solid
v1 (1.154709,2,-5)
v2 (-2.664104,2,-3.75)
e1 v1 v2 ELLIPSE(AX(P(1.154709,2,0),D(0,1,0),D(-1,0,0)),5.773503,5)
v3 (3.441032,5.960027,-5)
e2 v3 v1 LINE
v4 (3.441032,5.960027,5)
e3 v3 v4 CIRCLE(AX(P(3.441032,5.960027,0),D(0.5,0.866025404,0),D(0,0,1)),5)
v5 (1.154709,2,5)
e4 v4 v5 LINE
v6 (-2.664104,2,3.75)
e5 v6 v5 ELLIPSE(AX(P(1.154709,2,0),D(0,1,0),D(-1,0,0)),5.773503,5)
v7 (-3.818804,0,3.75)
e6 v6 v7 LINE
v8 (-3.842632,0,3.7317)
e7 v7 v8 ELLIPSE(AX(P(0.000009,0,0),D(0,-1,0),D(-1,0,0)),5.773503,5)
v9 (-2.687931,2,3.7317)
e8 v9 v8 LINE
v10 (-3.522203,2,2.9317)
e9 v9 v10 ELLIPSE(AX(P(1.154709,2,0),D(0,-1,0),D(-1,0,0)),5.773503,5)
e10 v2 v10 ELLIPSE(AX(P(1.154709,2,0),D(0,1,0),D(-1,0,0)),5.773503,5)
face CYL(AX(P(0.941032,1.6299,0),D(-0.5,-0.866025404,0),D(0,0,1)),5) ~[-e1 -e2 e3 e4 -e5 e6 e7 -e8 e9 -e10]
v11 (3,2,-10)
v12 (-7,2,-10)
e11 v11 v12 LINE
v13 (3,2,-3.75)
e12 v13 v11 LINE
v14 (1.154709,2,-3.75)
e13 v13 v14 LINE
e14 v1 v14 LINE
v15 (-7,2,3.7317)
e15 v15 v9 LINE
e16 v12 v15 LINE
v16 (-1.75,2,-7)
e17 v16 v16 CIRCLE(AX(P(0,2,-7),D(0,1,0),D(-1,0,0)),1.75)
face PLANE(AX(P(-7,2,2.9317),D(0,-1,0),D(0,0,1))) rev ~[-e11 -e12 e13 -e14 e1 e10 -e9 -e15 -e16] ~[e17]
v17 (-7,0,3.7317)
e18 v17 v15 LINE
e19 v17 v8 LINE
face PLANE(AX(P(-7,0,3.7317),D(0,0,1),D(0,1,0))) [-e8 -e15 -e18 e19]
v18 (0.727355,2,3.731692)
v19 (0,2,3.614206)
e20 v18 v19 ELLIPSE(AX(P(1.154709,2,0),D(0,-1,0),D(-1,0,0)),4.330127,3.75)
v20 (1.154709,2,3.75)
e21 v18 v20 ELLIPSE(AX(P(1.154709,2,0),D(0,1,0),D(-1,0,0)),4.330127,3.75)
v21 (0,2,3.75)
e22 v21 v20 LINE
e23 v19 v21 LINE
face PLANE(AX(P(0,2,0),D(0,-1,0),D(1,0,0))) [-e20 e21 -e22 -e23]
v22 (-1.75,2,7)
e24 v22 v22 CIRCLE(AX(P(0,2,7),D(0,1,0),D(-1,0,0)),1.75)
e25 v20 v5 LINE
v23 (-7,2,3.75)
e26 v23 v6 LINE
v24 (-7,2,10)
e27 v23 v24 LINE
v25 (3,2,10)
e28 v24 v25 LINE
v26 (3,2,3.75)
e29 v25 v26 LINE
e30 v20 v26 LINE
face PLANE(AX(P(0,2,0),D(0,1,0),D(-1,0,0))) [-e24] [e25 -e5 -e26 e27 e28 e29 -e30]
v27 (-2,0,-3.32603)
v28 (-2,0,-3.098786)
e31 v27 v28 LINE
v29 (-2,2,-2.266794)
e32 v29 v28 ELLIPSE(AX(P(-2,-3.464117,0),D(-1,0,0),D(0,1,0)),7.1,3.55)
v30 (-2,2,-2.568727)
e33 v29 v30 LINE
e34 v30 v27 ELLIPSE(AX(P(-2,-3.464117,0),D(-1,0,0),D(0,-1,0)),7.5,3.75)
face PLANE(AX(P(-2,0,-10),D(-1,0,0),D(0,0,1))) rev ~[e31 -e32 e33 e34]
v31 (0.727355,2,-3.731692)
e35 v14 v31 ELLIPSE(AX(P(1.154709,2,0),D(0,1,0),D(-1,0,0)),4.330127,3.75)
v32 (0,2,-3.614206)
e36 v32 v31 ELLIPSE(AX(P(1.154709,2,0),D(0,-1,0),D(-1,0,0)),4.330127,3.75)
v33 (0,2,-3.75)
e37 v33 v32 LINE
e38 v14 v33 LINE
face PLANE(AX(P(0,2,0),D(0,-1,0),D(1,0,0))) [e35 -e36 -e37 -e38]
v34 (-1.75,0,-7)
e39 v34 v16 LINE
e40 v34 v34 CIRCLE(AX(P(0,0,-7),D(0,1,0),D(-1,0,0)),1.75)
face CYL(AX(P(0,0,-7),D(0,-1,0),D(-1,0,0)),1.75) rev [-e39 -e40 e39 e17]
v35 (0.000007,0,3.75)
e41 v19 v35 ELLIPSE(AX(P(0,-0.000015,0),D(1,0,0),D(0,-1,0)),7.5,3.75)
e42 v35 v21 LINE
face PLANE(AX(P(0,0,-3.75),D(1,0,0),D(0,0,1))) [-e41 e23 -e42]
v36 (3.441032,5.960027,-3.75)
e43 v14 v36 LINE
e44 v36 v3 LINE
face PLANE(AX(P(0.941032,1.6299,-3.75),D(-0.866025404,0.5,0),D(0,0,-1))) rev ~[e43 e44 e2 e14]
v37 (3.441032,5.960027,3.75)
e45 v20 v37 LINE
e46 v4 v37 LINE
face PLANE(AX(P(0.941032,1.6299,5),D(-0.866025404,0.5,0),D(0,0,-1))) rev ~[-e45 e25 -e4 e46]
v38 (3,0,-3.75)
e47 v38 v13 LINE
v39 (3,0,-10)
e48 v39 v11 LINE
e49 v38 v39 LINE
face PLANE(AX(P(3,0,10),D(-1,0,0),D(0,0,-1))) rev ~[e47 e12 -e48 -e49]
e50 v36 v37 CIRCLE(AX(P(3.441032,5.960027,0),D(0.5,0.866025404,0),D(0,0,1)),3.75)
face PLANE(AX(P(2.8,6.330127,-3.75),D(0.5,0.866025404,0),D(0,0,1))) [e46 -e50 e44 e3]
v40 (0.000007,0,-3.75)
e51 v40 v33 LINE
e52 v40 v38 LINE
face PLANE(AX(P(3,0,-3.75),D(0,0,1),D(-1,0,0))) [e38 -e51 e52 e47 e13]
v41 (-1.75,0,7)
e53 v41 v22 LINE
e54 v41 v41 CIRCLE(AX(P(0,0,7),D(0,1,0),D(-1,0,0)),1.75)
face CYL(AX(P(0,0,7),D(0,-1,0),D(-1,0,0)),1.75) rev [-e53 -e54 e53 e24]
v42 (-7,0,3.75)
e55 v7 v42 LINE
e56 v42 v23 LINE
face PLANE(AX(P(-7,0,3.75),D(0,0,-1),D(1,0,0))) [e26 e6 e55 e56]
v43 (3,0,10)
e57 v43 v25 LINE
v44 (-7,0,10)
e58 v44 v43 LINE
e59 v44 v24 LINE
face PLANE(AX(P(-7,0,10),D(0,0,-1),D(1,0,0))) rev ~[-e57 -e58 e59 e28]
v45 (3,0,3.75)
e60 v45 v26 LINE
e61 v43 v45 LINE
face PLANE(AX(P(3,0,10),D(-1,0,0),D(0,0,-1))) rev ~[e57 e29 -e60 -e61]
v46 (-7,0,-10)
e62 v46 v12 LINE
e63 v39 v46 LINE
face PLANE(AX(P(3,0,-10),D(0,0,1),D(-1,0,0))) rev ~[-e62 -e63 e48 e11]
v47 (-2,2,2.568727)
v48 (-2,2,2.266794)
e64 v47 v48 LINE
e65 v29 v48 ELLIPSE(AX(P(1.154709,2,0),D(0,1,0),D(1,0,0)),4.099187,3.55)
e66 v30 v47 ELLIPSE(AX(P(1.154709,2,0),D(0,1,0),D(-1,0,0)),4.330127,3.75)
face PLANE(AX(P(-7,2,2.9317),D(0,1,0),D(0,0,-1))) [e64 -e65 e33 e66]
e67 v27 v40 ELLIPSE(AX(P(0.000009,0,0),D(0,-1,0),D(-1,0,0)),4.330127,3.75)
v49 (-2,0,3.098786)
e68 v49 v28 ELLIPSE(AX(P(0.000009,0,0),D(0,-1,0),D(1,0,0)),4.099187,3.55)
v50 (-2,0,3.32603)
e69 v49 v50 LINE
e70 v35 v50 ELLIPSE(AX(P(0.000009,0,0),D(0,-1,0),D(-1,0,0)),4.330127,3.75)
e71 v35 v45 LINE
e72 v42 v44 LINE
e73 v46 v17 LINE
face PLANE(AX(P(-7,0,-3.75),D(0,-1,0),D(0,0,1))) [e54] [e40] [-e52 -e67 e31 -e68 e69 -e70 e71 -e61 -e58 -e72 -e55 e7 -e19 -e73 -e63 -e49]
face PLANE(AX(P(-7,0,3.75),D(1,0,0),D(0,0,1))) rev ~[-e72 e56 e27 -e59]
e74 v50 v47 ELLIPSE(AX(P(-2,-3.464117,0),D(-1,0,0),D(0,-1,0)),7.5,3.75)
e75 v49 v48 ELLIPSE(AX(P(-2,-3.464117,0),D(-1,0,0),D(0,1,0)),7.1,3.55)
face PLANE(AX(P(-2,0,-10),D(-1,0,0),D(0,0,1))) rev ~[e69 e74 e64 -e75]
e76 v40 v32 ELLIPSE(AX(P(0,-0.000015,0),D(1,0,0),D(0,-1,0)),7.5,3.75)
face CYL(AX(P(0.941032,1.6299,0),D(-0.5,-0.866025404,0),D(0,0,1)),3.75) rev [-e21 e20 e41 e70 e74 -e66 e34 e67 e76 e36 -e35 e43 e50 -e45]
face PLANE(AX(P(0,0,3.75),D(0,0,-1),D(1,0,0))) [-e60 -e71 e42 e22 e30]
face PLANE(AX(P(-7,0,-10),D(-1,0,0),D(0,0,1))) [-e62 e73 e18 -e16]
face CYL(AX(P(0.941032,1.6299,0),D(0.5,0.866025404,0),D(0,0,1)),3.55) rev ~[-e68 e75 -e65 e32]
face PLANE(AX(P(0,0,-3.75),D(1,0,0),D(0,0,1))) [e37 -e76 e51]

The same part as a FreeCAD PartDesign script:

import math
import FreeCAD as App
import Part
import Sketcher
from FreeCAD import Vector
Q = App.Units.Quantity

doc = App.newDocument("Part")
body = doc.addObject("PartDesign::Body", "Body")
body.AllowCompound = True

# Sketch on XZ plane
sketch1 = body.newObject("Sketcher::SketchObject", "Sketch")
sketch1.AttachmentSupport = (doc.getObject("XZ_Plane"), [""])
sketch1.MapMode = "FlatFace"
sketch1.addGeometry(Part.LineSegment(Vector(-7, 3.8, 0), Vector(-7, 10, 0)), False)
sketch1.addGeometry(Part.LineSegment(Vector(-7, 10, 0), Vector(3, 10, 0)), False)
sketch1.addGeometry(Part.LineSegment(Vector(3, 10, 0), Vector(3, -10, 0)), False)
sketch1.addGeometry(Part.LineSegment(Vector(3, -10, 0), Vector(-7, -10, 0)), False)
sketch1.addGeometry(Part.LineSegment(Vector(-7, -10, 0), Vector(-7, -3.8, 0)), False)
sketch1.addGeometry(Part.LineSegment(Vector(-7, -3.8, 0), Vector(0.3, -3.8, 0)), False)
sketch1.addGeometry(Part.LineSegment(Vector(0.3, -3.8, 0), Vector(0.3, 3.8, 0)), False)
sketch1.addGeometry(Part.LineSegment(Vector(0.3, 3.8, 0), Vector(-7, 3.8, 0)), False)
sketch1.addGeometry(Part.Circle(Vector(0, -7, 0), Vector(0, 0, 1), 1.8), False)
sketch1.addGeometry(Part.Circle(Vector(0, 7, 0), Vector(0, 0, 1), 1.8), False)
sketch1.addConstraint(Sketcher.Constraint("Coincident", 0, 2, 1, 1))
sketch1.addConstraint(Sketcher.Constraint("Coincident", 1, 2, 2, 1))
sketch1.addConstraint(Sketcher.Constraint("Coincident", 2, 2, 3, 1))
sketch1.addConstraint(Sketcher.Constraint("Coincident", 3, 2, 4, 1))
sketch1.addConstraint(Sketcher.Constraint("Coincident", 4, 2, 5, 1))
sketch1.addConstraint(Sketcher.Constraint("Coincident", 5, 2, 6, 1))
sketch1.addConstraint(Sketcher.Constraint("Coincident", 6, 2, 7, 1))
sketch1.addConstraint(Sketcher.Constraint("Coincident", 7, 2, 0, 1))
sketch1.addConstraint(Sketcher.Constraint("Vertical", 0))
sketch1.addConstraint(Sketcher.Constraint("Horizontal", 1))
sketch1.addConstraint(Sketcher.Constraint("Vertical", 2))
sketch1.addConstraint(Sketcher.Constraint("Horizontal", 3))
sketch1.addConstraint(Sketcher.Constraint("Vertical", 4))
sketch1.addConstraint(Sketcher.Constraint("Horizontal", 5))
sketch1.addConstraint(Sketcher.Constraint("Vertical", 6))
sketch1.addConstraint(Sketcher.Constraint("Horizontal", 7))
sketch1.addConstraint(Sketcher.Constraint("Equal", 8, 9))
sketch1.addConstraint(Sketcher.Constraint("Symmetric", 8, 3, 9, 3, -1, 1))
sketch1.addConstraint(Sketcher.Constraint("Symmetric", 0, 2, 3, 2, -1))
sketch1.addConstraint(Sketcher.Constraint("PointOnObject", 8, 3, -2))
sketch1.addConstraint(Sketcher.Constraint("Equal", 0, 4))
sketch1.addConstraint(Sketcher.Constraint("Diameter", 8, Q("3.5 mm")))
sketch1.addConstraint(Sketcher.Constraint("DistanceX", 1, 1, 1, 2, Q("10 mm")))
sketch1.addConstraint(Sketcher.Constraint("DistanceY", 6, 1, 6, 2, Q("7.5 mm")))
sketch1.addConstraint(Sketcher.Constraint("DistanceY", 8, 3, -1, 1, Q("7 mm")))
sketch1.addConstraint(Sketcher.Constraint("DistanceX", 0, 2, -1, 1, Q("7 mm")))
sketch1.addConstraint(Sketcher.Constraint("DistanceY", -1, 1, 0, 2, Q("10 mm")))
sketch1.addConstraint(Sketcher.Constraint("DistanceX", -1, 1, 5, 2, Q("0.3 mm")))
pad1 = body.newObject("PartDesign::Pad", "Pad")
pad1.Profile = sketch1
pad1.Length = 2
pad1.Reversed = True

# Sketch on an angled plane
sketch2 = body.newObject("Sketcher::SketchObject", "Sketch001")
sketch2.Placement = App.Placement(Vector(0.3, 2, -3.75), App.Rotation(Vector(0, 0, 1), Vector(0.866025404, -0.5, 0), Vector(0.5, 0.866025404, 0), "ZXY"))
sketch2.addGeometry(Part.Circle(Vector(3.8, 0, 0), Vector(0, 0, 1), 3.8), False)
sketch2.addConstraint(Sketcher.Constraint("PointOnObject", 0, 3, -1))
sketch2.addConstraint(Sketcher.Constraint("Diameter", 0, Q("7.5 mm")))
sketch2.addConstraint(Sketcher.Constraint("DistanceX", -1, 1, 0, 3, Q("3.75 mm")))
pocket1 = body.newObject("PartDesign::Pocket", "Pocket")
pocket1.Profile = sketch2
pocket1.Type = "ThroughAll"
pocket1.Midplane = True

# Sketch on an angled plane
sketch3 = body.newObject("Sketcher::SketchObject", "Sketch002")
sketch3.Placement = App.Placement(Vector(0.3, 2, -3.75), App.Rotation(Vector(0, 0, 1), Vector(0.866025404, -0.5, 0), Vector(0.5, 0.866025404, 0), "ZXY"))
sketch3.addGeometry(Part.LineSegment(Vector(8.8, 0.7, 0), Vector(7.5, 0.7, 0)), False)
sketch3.addGeometry(Part.ArcOfCircle(Part.Circle(Vector(3.8, 0.7, 0), Vector(0, 0, 1), 3.8), math.radians(180), math.radians(360)), False)
sketch3.addGeometry(Part.LineSegment(Vector(0, 0.7, 0), Vector(-1.2, 0.7, 0)), False)
sketch3.addGeometry(Part.ArcOfCircle(Part.Circle(Vector(3.8, 0.7, 0), Vector(0, 0, 1), 5), math.radians(180), math.radians(360)), False)
sketch3.addConstraint(Sketcher.Constraint("Coincident", 0, 2, 1, 2))
sketch3.addConstraint(Sketcher.Constraint("Coincident", 1, 1, 2, 1))
sketch3.addConstraint(Sketcher.Constraint("Coincident", 2, 2, 3, 1))
sketch3.addConstraint(Sketcher.Constraint("Coincident", 3, 2, 0, 1))
sketch3.addConstraint(Sketcher.Constraint("Horizontal", 0))
sketch3.addConstraint(Sketcher.Constraint("Horizontal", 2))
sketch3.addConstraint(Sketcher.Constraint("Coincident", 3, 3, 1, 3))
sketch3.addConstraint(Sketcher.Constraint("PointOnObject", 1, 1, -2))
sketch3.addConstraint(Sketcher.Constraint("Horizontal", 3, 3, 0, 2))
sketch3.addConstraint(Sketcher.Constraint("Horizontal", 0, 2, 1, 1))
sketch3.addConstraint(Sketcher.Constraint("Radius", 3, Q("5 mm")))
sketch3.addConstraint(Sketcher.Constraint("Radius", 1, Q("3.75 mm")))
sketch3.addConstraint(Sketcher.Constraint("DistanceY", -1, 1, 1, 3, Q("0.7402 mm")))
pad2 = body.newObject("PartDesign::Pad", "Pad001")
pad2.Profile = sketch3
pad2.Length = 10
pad2.Midplane = True

# Sketch on YZ plane
sketch4 = body.newObject("Sketcher::SketchObject", "Sketch003")
sketch4.AttachmentSupport = (doc.getObject("YZ_Plane"), [""])
sketch4.MapMode = "FlatFace"
sketch4.AttachmentOffset = App.Placement(Vector(0, 0, -7), App.Rotation())
sketch4.addGeometry(Part.LineSegment(Vector(2, 3.7, 0), Vector(2, -3.8, 0)), False)
sketch4.addGeometry(Part.LineSegment(Vector(2, -3.8, 0), Vector(0, -3.8, 0)), False)
sketch4.addGeometry(Part.LineSegment(Vector(0, -3.8, 0), Vector(0, 3.7, 0)), False)
sketch4.addGeometry(Part.LineSegment(Vector(0, 3.7, 0), Vector(2, 3.7, 0)), False)
sketch4.addConstraint(Sketcher.Constraint("Coincident", 0, 2, 1, 1))
sketch4.addConstraint(Sketcher.Constraint("Coincident", 1, 2, 2, 1))
sketch4.addConstraint(Sketcher.Constraint("Coincident", 2, 2, 3, 1))
sketch4.addConstraint(Sketcher.Constraint("Coincident", 3, 2, 0, 1))
sketch4.addConstraint(Sketcher.Constraint("Vertical", 0))
sketch4.addConstraint(Sketcher.Constraint("Horizontal", 1))
sketch4.addConstraint(Sketcher.Constraint("Vertical", 2))
sketch4.addConstraint(Sketcher.Constraint("Horizontal", 3))
sketch4.addConstraint(Sketcher.Constraint("PointOnObject", 1, 2, -2))
sketch4.addConstraint(Sketcher.Constraint("DistanceX", 1, 2, 1, 1, Q("2 mm")))
sketch4.addConstraint(Sketcher.Constraint("DistanceY", 0, 2, -1, 1, Q("3.75 mm")))
sketch4.addConstraint(Sketcher.Constraint("DistanceY", 0, 2, 0, 1, Q("7.4817 mm")))
pad3 = body.newObject("PartDesign::Pad", "Pad002")
pad3.Profile = sketch4
pad3.Length = 5

# Sketch on XY plane
sketch5 = body.newObject("Sketcher::SketchObject", "Sketch004")
sketch5.AttachmentSupport = (doc.getObject("XY_Plane"), [""])
sketch5.MapMode = "FlatFace"
sketch5.AttachmentOffset = App.Placement(Vector(0, 0, 10), App.Rotation())
sketch5.addGeometry(Part.LineSegment(Vector(3, 0, 0), Vector(-7, 0, 0)), False)
sketch5.addGeometry(Part.LineSegment(Vector(-7, 0, 0), Vector(-7, -5, 0)), False)
sketch5.addGeometry(Part.LineSegment(Vector(-7, -5, 0), Vector(3, -5, 0)), False)
sketch5.addGeometry(Part.LineSegment(Vector(3, -5, 0), Vector(3, 0, 0)), False)
sketch5.addConstraint(Sketcher.Constraint("Coincident", 0, 2, 1, 1))
sketch5.addConstraint(Sketcher.Constraint("Coincident", 1, 2, 2, 1))
sketch5.addConstraint(Sketcher.Constraint("Coincident", 2, 2, 3, 1))
sketch5.addConstraint(Sketcher.Constraint("Coincident", 3, 2, 0, 1))
sketch5.addConstraint(Sketcher.Constraint("Horizontal", 0))
sketch5.addConstraint(Sketcher.Constraint("Vertical", 1))
sketch5.addConstraint(Sketcher.Constraint("Horizontal", 2))
sketch5.addConstraint(Sketcher.Constraint("Vertical", 3))
sketch5.addConstraint(Sketcher.Constraint("PointOnObject", 0, 2, -1))
sketch5.addConstraint(Sketcher.Constraint("DistanceX", 0, 2, 0, 1, Q("10 mm")))
sketch5.addConstraint(Sketcher.Constraint("DistanceY", 1, 2, 1, 1, Q("5 mm")))
sketch5.addConstraint(Sketcher.Constraint("DistanceX", 0, 2, -1, 1, Q("7 mm")))
pocket2 = body.newObject("PartDesign::Pocket", "Pocket001")
pocket2.Profile = sketch5
pocket2.Type = "ThroughAll"

# Sketch on an angled plane
sketch6 = body.newObject("Sketcher::SketchObject", "Sketch005")
sketch6.Placement = App.Placement(Vector(0.3, 2, -3.75), App.Rotation(Vector(0, 0, 1), Vector(0.866025404, -0.5, 0), Vector(0.5, 0.866025404, 0), "ZXY"))
sketch6.addGeometry(Part.Circle(Vector(3.8, 0.7, 0), Vector(0, 0, 1), 3.5), False)
sketch6.addConstraint(Sketcher.Constraint("Diameter", 0, Q("7.1 mm")))
sketch6.addConstraint(Sketcher.Constraint("DistanceX", -1, 1, 0, 3, Q("3.75 mm")))
sketch6.addConstraint(Sketcher.Constraint("DistanceY", -1, 1, 0, 3, Q("0.7402 mm")))
pocket3 = body.newObject("PartDesign::Pocket", "Pocket002")
pocket3.Profile = sketch6
pocket3.Type = "ThroughAll"

# Sketch on XZ plane
sketch7 = body.newObject("Sketcher::SketchObject", "Sketch006")
sketch7.AttachmentSupport = (doc.getObject("XZ_Plane"), [""])
sketch7.MapMode = "FlatFace"
sketch7.addGeometry(Part.LineSegment(Vector(3, 3.8, 0), Vector(0, 3.8, 0)), False)
sketch7.addGeometry(Part.LineSegment(Vector(0, 3.8, 0), Vector(0, -3.8, 0)), False)
sketch7.addGeometry(Part.LineSegment(Vector(0, -3.8, 0), Vector(3, -3.8, 0)), False)
sketch7.addGeometry(Part.LineSegment(Vector(3, -3.8, 0), Vector(3, 3.8, 0)), False)
sketch7.addConstraint(Sketcher.Constraint("Coincident", 0, 2, 1, 1))
sketch7.addConstraint(Sketcher.Constraint("Coincident", 1, 2, 2, 1))
sketch7.addConstraint(Sketcher.Constraint("Coincident", 2, 2, 3, 1))
sketch7.addConstraint(Sketcher.Constraint("Coincident", 3, 2, 0, 1))
sketch7.addConstraint(Sketcher.Constraint("Horizontal", 0))
sketch7.addConstraint(Sketcher.Constraint("Vertical", 1))
sketch7.addConstraint(Sketcher.Constraint("Horizontal", 2))
sketch7.addConstraint(Sketcher.Constraint("Vertical", 3))
sketch7.addConstraint(Sketcher.Constraint("Symmetric", 0, 2, 1, 2, -1, 1))
sketch7.addConstraint(Sketcher.Constraint("DistanceY", 1, 2, 1, 1, Q("7.5 mm")))
sketch7.addConstraint(Sketcher.Constraint("DistanceX", 0, 2, 0, 1, Q("3 mm")))
pocket4 = body.newObject("PartDesign::Pocket", "Pocket003")
pocket4.Profile = sketch7
pocket4.Length = 2

doc.recompute()
